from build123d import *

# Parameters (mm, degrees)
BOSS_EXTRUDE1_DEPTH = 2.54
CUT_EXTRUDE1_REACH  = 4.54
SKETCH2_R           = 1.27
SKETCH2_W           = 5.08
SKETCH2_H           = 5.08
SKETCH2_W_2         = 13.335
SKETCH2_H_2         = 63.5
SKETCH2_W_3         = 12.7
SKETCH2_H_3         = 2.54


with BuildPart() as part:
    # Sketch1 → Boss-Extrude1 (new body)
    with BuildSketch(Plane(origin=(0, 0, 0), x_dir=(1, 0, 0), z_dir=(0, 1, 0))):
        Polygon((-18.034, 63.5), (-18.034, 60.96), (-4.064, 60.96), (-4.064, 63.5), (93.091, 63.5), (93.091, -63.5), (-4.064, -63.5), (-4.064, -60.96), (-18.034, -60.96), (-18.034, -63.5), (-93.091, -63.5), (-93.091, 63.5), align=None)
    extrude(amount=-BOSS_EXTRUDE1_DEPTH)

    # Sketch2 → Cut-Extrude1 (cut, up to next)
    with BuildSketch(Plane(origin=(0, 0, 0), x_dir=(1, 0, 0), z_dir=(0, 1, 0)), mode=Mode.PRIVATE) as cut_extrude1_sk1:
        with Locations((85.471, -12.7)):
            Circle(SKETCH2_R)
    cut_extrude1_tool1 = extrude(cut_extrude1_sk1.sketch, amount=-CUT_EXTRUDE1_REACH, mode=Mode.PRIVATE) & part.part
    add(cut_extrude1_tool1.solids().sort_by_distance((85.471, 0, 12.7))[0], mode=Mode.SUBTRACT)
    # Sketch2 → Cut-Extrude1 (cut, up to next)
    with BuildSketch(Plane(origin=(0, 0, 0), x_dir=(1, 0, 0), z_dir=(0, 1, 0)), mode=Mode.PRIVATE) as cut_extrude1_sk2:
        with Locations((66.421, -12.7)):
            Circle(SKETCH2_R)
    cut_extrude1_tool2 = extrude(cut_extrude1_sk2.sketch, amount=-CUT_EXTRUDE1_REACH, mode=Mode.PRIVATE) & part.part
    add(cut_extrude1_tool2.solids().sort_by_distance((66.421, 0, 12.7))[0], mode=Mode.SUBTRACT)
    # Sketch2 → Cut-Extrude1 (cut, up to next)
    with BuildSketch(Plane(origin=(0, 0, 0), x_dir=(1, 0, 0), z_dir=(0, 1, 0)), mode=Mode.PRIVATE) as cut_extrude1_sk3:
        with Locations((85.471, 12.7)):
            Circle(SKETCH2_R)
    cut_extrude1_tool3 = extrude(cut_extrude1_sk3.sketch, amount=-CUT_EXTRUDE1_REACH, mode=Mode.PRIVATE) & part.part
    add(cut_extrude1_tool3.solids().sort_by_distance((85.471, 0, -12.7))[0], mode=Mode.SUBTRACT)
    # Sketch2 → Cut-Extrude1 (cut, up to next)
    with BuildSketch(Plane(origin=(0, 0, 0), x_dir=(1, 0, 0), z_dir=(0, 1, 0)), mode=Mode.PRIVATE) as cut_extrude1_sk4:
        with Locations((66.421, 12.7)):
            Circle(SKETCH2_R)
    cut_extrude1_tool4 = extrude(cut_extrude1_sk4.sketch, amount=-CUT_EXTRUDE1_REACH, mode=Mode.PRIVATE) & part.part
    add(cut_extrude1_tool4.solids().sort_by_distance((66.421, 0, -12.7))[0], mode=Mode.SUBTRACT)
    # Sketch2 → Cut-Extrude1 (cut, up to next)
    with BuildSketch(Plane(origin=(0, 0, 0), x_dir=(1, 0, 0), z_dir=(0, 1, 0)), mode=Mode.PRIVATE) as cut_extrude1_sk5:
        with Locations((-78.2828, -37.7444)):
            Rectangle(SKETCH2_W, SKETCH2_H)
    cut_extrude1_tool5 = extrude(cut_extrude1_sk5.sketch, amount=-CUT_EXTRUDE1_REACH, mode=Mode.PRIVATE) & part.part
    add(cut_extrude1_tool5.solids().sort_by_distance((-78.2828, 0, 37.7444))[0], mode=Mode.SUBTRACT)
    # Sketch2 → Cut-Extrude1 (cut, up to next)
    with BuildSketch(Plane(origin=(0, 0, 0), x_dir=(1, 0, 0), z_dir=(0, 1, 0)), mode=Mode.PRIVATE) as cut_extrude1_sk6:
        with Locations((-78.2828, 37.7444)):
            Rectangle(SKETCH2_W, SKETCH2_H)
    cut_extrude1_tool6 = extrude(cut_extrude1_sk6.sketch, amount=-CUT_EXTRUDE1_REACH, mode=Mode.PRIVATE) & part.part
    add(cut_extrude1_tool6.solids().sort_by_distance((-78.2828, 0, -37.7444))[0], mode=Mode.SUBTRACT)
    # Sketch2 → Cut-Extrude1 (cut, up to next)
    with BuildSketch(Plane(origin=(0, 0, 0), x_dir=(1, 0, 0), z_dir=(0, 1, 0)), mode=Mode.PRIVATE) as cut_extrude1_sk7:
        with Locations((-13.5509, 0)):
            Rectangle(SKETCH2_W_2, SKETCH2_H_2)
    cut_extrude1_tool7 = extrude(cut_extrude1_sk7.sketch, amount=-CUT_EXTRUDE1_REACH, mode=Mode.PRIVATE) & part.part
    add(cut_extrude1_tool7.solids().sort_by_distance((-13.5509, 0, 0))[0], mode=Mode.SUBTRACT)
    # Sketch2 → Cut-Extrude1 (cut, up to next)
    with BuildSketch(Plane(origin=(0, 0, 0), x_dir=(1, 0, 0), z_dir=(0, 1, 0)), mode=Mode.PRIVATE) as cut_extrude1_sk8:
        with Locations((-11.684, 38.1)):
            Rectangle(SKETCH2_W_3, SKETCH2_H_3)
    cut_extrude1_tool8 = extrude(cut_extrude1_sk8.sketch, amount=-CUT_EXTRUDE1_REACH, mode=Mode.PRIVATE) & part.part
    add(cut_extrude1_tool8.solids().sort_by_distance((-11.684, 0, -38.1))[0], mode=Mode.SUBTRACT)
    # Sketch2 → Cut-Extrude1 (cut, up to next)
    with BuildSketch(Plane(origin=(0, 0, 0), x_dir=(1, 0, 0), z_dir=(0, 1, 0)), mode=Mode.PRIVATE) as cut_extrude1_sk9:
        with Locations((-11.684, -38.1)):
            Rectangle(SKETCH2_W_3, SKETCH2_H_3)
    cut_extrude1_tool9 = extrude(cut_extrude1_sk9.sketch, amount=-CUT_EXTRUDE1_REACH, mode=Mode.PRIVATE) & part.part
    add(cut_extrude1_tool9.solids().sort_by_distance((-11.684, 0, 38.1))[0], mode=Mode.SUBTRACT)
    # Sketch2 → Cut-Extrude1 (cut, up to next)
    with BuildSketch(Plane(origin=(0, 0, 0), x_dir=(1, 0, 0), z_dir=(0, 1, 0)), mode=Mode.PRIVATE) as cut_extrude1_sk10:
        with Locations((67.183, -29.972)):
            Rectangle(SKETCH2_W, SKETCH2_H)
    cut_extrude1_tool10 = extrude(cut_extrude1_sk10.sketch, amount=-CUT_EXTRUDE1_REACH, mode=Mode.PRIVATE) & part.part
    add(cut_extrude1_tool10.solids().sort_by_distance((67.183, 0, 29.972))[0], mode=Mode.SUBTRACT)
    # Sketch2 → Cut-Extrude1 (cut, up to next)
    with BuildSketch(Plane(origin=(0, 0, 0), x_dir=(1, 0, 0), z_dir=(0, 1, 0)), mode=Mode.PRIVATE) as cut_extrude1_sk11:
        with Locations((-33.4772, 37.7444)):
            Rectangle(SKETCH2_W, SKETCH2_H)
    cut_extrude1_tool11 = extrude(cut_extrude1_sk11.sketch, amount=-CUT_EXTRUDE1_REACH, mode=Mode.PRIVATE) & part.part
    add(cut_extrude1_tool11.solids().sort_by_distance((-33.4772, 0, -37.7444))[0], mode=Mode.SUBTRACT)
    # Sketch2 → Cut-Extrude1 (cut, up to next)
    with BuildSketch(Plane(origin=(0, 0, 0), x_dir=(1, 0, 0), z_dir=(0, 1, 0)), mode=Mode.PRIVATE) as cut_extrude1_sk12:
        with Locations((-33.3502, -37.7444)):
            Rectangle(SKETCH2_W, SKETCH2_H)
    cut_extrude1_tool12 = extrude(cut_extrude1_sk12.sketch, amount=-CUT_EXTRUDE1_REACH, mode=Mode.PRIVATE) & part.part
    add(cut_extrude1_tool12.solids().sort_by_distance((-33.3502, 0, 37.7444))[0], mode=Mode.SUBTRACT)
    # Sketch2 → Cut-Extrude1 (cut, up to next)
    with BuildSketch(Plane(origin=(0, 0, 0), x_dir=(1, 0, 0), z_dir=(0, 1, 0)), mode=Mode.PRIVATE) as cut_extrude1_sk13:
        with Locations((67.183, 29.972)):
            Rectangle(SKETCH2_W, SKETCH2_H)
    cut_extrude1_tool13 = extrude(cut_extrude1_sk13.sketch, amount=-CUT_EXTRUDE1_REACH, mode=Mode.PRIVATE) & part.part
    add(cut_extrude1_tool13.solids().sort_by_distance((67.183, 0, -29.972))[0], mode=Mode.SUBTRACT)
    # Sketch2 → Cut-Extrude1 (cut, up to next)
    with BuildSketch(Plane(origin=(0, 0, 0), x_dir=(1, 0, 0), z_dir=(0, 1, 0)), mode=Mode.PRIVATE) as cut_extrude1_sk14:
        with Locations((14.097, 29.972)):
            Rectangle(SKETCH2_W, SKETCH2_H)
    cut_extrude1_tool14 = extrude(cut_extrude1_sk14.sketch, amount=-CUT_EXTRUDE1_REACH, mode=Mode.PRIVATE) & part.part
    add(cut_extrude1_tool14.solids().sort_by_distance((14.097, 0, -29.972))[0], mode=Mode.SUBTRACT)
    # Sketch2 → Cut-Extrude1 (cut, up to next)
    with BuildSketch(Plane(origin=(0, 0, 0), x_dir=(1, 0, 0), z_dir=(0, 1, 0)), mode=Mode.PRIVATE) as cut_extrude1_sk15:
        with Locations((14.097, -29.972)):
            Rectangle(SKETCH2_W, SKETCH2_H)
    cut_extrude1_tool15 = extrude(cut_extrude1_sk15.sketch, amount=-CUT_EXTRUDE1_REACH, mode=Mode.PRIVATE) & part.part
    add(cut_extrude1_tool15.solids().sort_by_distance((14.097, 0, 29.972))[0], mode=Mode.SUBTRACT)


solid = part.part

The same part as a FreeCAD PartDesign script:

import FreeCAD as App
import Part
import Sketcher
Q = App.Units.Quantity

doc = App.newDocument("Part")
body = doc.addObject("PartDesign::Body", "Body")

# Sketch on XZ plane
sketch1 = doc.addObject("Sketcher::SketchObject", "Sketch")
body.addObject(sketch1)
sketch1.AttachmentSupport = (doc.XZ_Plane, [""])
sketch1.MapMode = "FlatFace"
sketch1.addGeometry(Part.LineSegment(App.Vector(-18, -61, 0), App.Vector(-18, -63.5, 0)), False)
sketch1.addGeometry(Part.LineSegment(App.Vector(-18, -63.5, 0), App.Vector(-93.1, -63.5, 0)), False)
sketch1.addGeometry(Part.LineSegment(App.Vector(-93.1, -63.5, 0), App.Vector(-93.1, 63.5, 0)), False)
sketch1.addGeometry(Part.LineSegment(App.Vector(-93.1, 63.5, 0), App.Vector(-18, 63.5, 0)), False)
sketch1.addGeometry(Part.LineSegment(App.Vector(-18, 63.5, 0), App.Vector(-18, 61, 0)), False)
sketch1.addGeometry(Part.LineSegment(App.Vector(-18, 61, 0), App.Vector(-4.1, 61, 0)), False)
sketch1.addGeometry(Part.LineSegment(App.Vector(-4.1, 61, 0), App.Vector(-4.1, 63.5, 0)), False)
sketch1.addGeometry(Part.LineSegment(App.Vector(-4.1, 63.5, 0), App.Vector(93.1, 63.5, 0)), False)
sketch1.addGeometry(Part.LineSegment(App.Vector(93.1, 63.5, 0), App.Vector(93.1, -63.5, 0)), False)
sketch1.addGeometry(Part.LineSegment(App.Vector(93.1, -63.5, 0), App.Vector(-4.1, -63.5, 0)), False)
sketch1.addGeometry(Part.LineSegment(App.Vector(-4.1, -63.5, 0), App.Vector(-4.1, -61, 0)), False)
sketch1.addGeometry(Part.LineSegment(App.Vector(-4.1, -61, 0), App.Vector(-18, -61, 0)), False)
sketch1.addConstraint(Sketcher.Constraint("Coincident", 0, 2, 1, 1))
sketch1.addConstraint(Sketcher.Constraint("Coincident", 1, 2, 2, 1))
sketch1.addConstraint(Sketcher.Constraint("Coincident", 2, 2, 3, 1))
sketch1.addConstraint(Sketcher.Constraint("Coincident", 3, 2, 4, 1))
sketch1.addConstraint(Sketcher.Constraint("Coincident", 4, 2, 5, 1))
sketch1.addConstraint(Sketcher.Constraint("Coincident", 5, 2, 6, 1))
sketch1.addConstraint(Sketcher.Constraint("Coincident", 6, 2, 7, 1))
sketch1.addConstraint(Sketcher.Constraint("Coincident", 7, 2, 8, 1))
sketch1.addConstraint(Sketcher.Constraint("Coincident", 8, 2, 9, 1))
sketch1.addConstraint(Sketcher.Constraint("Coincident", 9, 2, 10, 1))
sketch1.addConstraint(Sketcher.Constraint("Coincident", 10, 2, 11, 1))
sketch1.addConstraint(Sketcher.Constraint("Coincident", 11, 2, 0, 1))
sketch1.addConstraint(Sketcher.Constraint("Vertical", 0))
sketch1.addConstraint(Sketcher.Constraint("Horizontal", 1))
sketch1.addConstraint(Sketcher.Constraint("Vertical", 2))
sketch1.addConstraint(Sketcher.Constraint("Horizontal", 3))
sketch1.addConstraint(Sketcher.Constraint("Vertical", 4))
sketch1.addConstraint(Sketcher.Constraint("Horizontal", 5))
sketch1.addConstraint(Sketcher.Constraint("Vertical", 6))
sketch1.addConstraint(Sketcher.Constraint("Horizontal", 7))
sketch1.addConstraint(Sketcher.Constraint("Vertical", 8))
sketch1.addConstraint(Sketcher.Constraint("Horizontal", 9))
sketch1.addConstraint(Sketcher.Constraint("Vertical", 10))
sketch1.addConstraint(Sketcher.Constraint("Horizontal", 11))
sketch1.addConstraint(Sketcher.Constraint("Symmetric", 1, 2, 7, 2, -1, 1))
sketch1.addConstraint(Sketcher.Constraint("Symmetric", 0, 2, 3, 2, -1))
sketch1.addConstraint(Sketcher.Constraint("Symmetric", 6, 2, 9, 2, -1))
sketch1.addConstraint(Sketcher.Constraint("Equal", 0, 4))
sketch1.addConstraint(Sketcher.Constraint("DistanceY", 2, 1, 2, 2, Q("5 in")))
sketch1.addConstraint(Sketcher.Constraint("DistanceY", 0, 2, 0, 1, Q("0.1 in")))
sketch1.addConstraint(Sketcher.Constraint("DistanceX", 5, 1, 5, 2, Q("0.55 in")))
sketch1.addConstraint(Sketcher.Constraint("DistanceX", 1, 2, 1, 1, Q("2.955 in")))
sketch1.addConstraint(Sketcher.Constraint("DistanceX", 7, 1, 7, 2, Q("3.825 in")))
pad1 = doc.addObject("PartDesign::Pad", "Pad")
body.addObject(pad1)
pad1.Profile = sketch1
pad1.Length = Q("0.1 in")

# Sketch on XZ plane
sketch2 = doc.addObject("Sketcher::SketchObject", "Sketch001")
body.addObject(sketch2)
sketch2.AttachmentSupport = (doc.XZ_Plane, [""])
sketch2.MapMode = "FlatFace"
sketch2.addGeometry(Part.Circle(App.Vector(85.5, 12.7, 0), App.Vector(0, 0, 1), 1.3), False)
sketch2.addConstraint(Sketcher.Constraint("Diameter", 0, Q("0.1 in")))
sketch2.addConstraint(Sketcher.Constraint("DistanceY", -1, 1, 0, 3, Q("0.5 in")))
sketch2.addConstraint(Sketcher.Constraint("DistanceX", -1, 1, 0, 3, Q("3.365 in")))
pocket1 = doc.addObject("PartDesign::Pocket", "Pocket")
body.addObject(pocket1)
pocket1.Profile = sketch2
pocket1.Type = "UpToFirst"
pocket1.Reversed = True

# Sketch on XZ plane
sketch3 = doc.addObject("Sketcher::SketchObject", "Sketch002")
body.addObject(sketch3)
sketch3.AttachmentSupport = (doc.XZ_Plane, [""])
sketch3.MapMode = "FlatFace"
sketch3.addGeometry(Part.Circle(App.Vector(66.4, 12.7, 0), App.Vector(0, 0, 1), 1.3), False)
sketch3.addConstraint(Sketcher.Constraint("Diameter", 0, Q("0.1 in")))
sketch3.addConstraint(Sketcher.Constraint("DistanceY", -1, 1, 0, 3, Q("0.5 in")))
sketch3.addConstraint(Sketcher.Constraint("DistanceX", -1, 1, 0, 3, Q("2.615 in")))
pocket2 = doc.addObject("PartDesign::Pocket", "Pocket001")
body.addObject(pocket2)
pocket2.Profile = sketch3
pocket2.Type = "UpToFirst"
pocket2.Reversed = True

# Sketch on XZ plane
sketch4 = doc.addObject("Sketcher::SketchObject", "Sketch003")
body.addObject(sketch4)
sketch4.AttachmentSupport = (doc.XZ_Plane, [""])
sketch4.MapMode = "FlatFace"
sketch4.addGeometry(Part.Circle(App.Vector(85.5, -12.7, 0), App.Vector(0, 0, 1), 1.3), False)
sketch4.addConstraint(Sketcher.Constraint("Diameter", 0, Q("0.1 in")))
sketch4.addConstraint(Sketcher.Constraint("DistanceY", 0, 3, -1, 1, Q("0.5 in")))
sketch4.addConstraint(Sketcher.Constraint("DistanceX", -1, 1, 0, 3, Q("3.365 in")))
pocket3 = doc.addObject("PartDesign::Pocket", "Pocket002")
body.addObject(pocket3)
pocket3.Profile = sketch4
pocket3.Type = "UpToFirst"
pocket3.Reversed = True

# Sketch on XZ plane
sketch5 = doc.addObject("Sketcher::SketchObject", "Sketch004")
body.addObject(sketch5)
sketch5.AttachmentSupport = (doc.XZ_Plane, [""])
sketch5.MapMode = "FlatFace"
sketch5.addGeometry(Part.Circle(App.Vector(66.4, -12.7, 0), App.Vector(0, 0, 1), 1.3), False)
sketch5.addConstraint(Sketcher.Constraint("Diameter", 0, Q("0.1 in")))
sketch5.addConstraint(Sketcher.Constraint("DistanceY", 0, 3, -1, 1, Q("0.5 in")))
sketch5.addConstraint(Sketcher.Constraint("DistanceX", -1, 1, 0, 3, Q("2.615 in")))
pocket4 = doc.addObject("PartDesign::Pocket", "Pocket003")
body.addObject(pocket4)
pocket4.Profile = sketch5
pocket4.Type = "UpToFirst"
pocket4.Reversed = True

# Sketch on XZ plane
sketch6 = doc.addObject("Sketcher::SketchObject", "Sketch005")
body.addObject(sketch6)
sketch6.AttachmentSupport = (doc.XZ_Plane, [""])
sketch6.MapMode = "FlatFace"
sketch6.addGeometry(Part.LineSegment(App.Vector(-81, 35, 0), App.Vector(-81, 40, 0)), False)
sketch6.addGeometry(Part.LineSegment(App.Vector(-81, 40, 0), App.Vector(-76, 40, 0)), False)
sketch6.addGeometry(Part.LineSegment(App.Vector(-76, 40, 0), App.Vector(-76, 35, 0)), False)
sketch6.addGeometry(Part.LineSegment(App.Vector(-76, 35, 0), App.Vector(-81, 35, 0)), False)
sketch6.addConstraint(Sketcher.Constraint("Coincident", 0, 2, 1, 1))
sketch6.addConstraint(Sketcher.Constraint("Coincident", 1, 2, 2, 1))
sketch6.addConstraint(Sketcher.Constraint("Coincident", 2, 2, 3, 1))
sketch6.addConstraint(Sketcher.Constraint("Coincident", 3, 2, 0, 1))
sketch6.addConstraint(Sketcher.Constraint("Vertical", 0))
sketch6.addConstraint(Sketcher.Constraint("Horizontal", 1))
sketch6.addConstraint(Sketcher.Constraint("Vertical", 2))
sketch6.addConstraint(Sketcher.Constraint("Horizontal", 3))
sketch6.addConstraint(Sketcher.Constraint("Equal", 3, 0))
sketch6.addConstraint(Sketcher.Constraint("DistanceX", 1, 1, 1, 2, Q("0.2 in")))
sketch6.addConstraint(Sketcher.Constraint("DistanceX", 0, 2, -1, 1, Q("3.182 in")))
sketch6.addConstraint(Sketcher.Constraint("DistanceY", -1, 1, 0, 2, Q("1.586 in")))
pocket5 = doc.addObject("PartDesign::Pocket", "Pocket004")
body.addObject(pocket5)
pocket5.Profile = sketch6
pocket5.Type = "UpToFirst"
pocket5.Reversed = True

# Sketch on XZ plane
sketch7 = doc.addObject("Sketcher::SketchObject", "Sketch006")
body.addObject(sketch7)
sketch7.AttachmentSupport = (doc.XZ_Plane, [""])
sketch7.MapMode = "FlatFace"
sketch7.addGeometry(Part.LineSegment(App.Vector(-81, -40, 0), App.Vector(-81, -35, 0)), False)
sketch7.addGeometry(Part.LineSegment(App.Vector(-81, -35, 0), App.Vector(-76, -35, 0)), False)
sketch7.addGeometry(Part.LineSegment(App.Vector(-76, -35, 0), App.Vector(-76, -40, 0)), False)
sketch7.addGeometry(Part.LineSegment(App.Vector(-76, -40, 0), App.Vector(-81, -40, 0)), False)
sketch7.addConstraint(Sketcher.Constraint("Coincident", 0, 2, 1, 1))
sketch7.addConstraint(Sketcher.Constraint("Coincident", 1, 2, 2, 1))
sketch7.addConstraint(Sketcher.Constraint("Coincident", 2, 2, 3, 1))
sketch7.addConstraint(Sketcher.Constraint("Coincident", 3, 2, 0, 1))
sketch7.addConstraint(Sketcher.Constraint("Vertical", 0))
sketch7.addConstraint(Sketcher.Constraint("Horizontal", 1))
sketch7.addConstraint(Sketcher.Constraint("Vertical", 2))
sketch7.addConstraint(Sketcher.Constraint("Horizontal", 3))
sketch7.addConstraint(Sketcher.Constraint("Equal", 3, 0))
sketch7.addConstraint(Sketcher.Constraint("DistanceX", 1, 1, 1, 2, Q("0.2 in")))
sketch7.addConstraint(Sketcher.Constraint("DistanceX", 0, 2, -1, 1, Q("3.182 in")))
sketch7.addConstraint(Sketcher.Constraint("DistanceY", 0, 2, -1, 1, Q("1.386 in")))
pocket6 = doc.addObject("PartDesign::Pocket", "Pocket005")
body.addObject(pocket6)
pocket6.Profile = sketch7
pocket6.Type = "UpToFirst"
pocket6.Reversed = True

# Sketch on XZ plane
sketch8 = doc.addObject("Sketcher::SketchObject", "Sketch007")
body.addObject(sketch8)
sketch8.AttachmentSupport = (doc.XZ_Plane, [""])
sketch8.MapMode = "FlatFace"
sketch8.addGeometry(Part.LineSegment(App.Vector(-20, -32, 0), App.Vector(-20, 32, 0)), False)
sketch8.addGeometry(Part.LineSegment(App.Vector(-20, 32, 0), App.Vector(-7, 32, 0)), False)
sketch8.addGeometry(Part.LineSegment(App.Vector(-7, 32, 0), App.Vector(-7, -32, 0)), False)
sketch8.addGeometry(Part.LineSegment(App.Vector(-7, -32, 0), App.Vector(-20, -32, 0)), False)
sketch8.addConstraint(Sketcher.Constraint("Coincident", 0, 2, 1, 1))
sketch8.addConstraint(Sketcher.Constraint("Coincident", 1, 2, 2, 1))
sketch8.addConstraint(Sketcher.Constraint("Coincident", 2, 2, 3, 1))
sketch8.addConstraint(Sketcher.Constraint("Coincident", 3, 2, 0, 1))
sketch8.addConstraint(Sketcher.Constraint("Vertical", 0))
sketch8.addConstraint(Sketcher.Constraint("Horizontal", 1))
sketch8.addConstraint(Sketcher.Constraint("Vertical", 2))
sketch8.addConstraint(Sketcher.Constraint("Horizontal", 3))
sketch8.addConstraint(Sketcher.Constraint("DistanceY", 0, 1, 0, 2, Q("2.5 in")))
sketch8.addConstraint(Sketcher.Constraint("DistanceX", 1, 1, 1, 2, Q("0.525 in")))
sketch8.addConstraint(Sketcher.Constraint("DistanceY", -1, 1, 0, 2, Q("1.25 in")))
sketch8.addConstraint(Sketcher.Constraint("DistanceX", 0, 2, -1, 1, Q("0.796 in")))
pocket7 = doc.addObject("PartDesign::Pocket", "Pocket006")
body.addObject(pocket7)
pocket7.Profile = sketch8
pocket7.Type = "UpToFirst"
pocket7.Reversed = True

# Sketch on XZ plane
sketch9 = doc.addObject("Sketcher::SketchObject", "Sketch008")
body.addObject(sketch9)
sketch9.AttachmentSupport = (doc.XZ_Plane, [""])
sketch9.MapMode = "FlatFace"
sketch9.addGeometry(Part.LineSegment(App.Vector(-18, -39.4, 0), App.Vector(-18, -36.8, 0)), False)
sketch9.addGeometry(Part.LineSegment(App.Vector(-18, -36.8, 0), App.Vector(-5.3, -36.8, 0)), False)
sketch9.addGeometry(Part.LineSegment(App.Vector(-5.3, -36.8, 0), App.Vector(-5.3, -39.4, 0)), False)
sketch9.addGeometry(Part.LineSegment(App.Vector(-5.3, -39.4, 0), App.Vector(-18, -39.4, 0)), False)
sketch9.addConstraint(Sketcher.Constraint("Coincident", 0, 2, 1, 1))
sketch9.addConstraint(Sketcher.Constraint("Coincident", 1, 2, 2, 1))
sketch9.addConstraint(Sketcher.Constraint("Coincident", 2, 2, 3, 1))
sketch9.addConstraint(Sketcher.Constraint("Coincident", 3, 2, 0, 1))
sketch9.addConstraint(Sketcher.Constraint("Vertical", 0))
sketch9.addConstraint(Sketcher.Constraint("Horizontal", 1))
sketch9.addConstraint(Sketcher.Constraint("Vertical", 2))
sketch9.addConstraint(Sketcher.Constraint("Horizontal", 3))
sketch9.addConstraint(Sketcher.Constraint("DistanceX", 1, 1, 1, 2, Q("0.5 in")))
sketch9.addConstraint(Sketcher.Constraint("DistanceY", 0, 1, 0, 2, Q("0.1 in")))
sketch9.addConstraint(Sketcher.Constraint("DistanceX", 0, 2, -1, 1, Q("0.71 in")))
sketch9.addConstraint(Sketcher.Constraint("DistanceY", 0, 2, -1, 1, Q("1.45 in")))
pocket8 = doc.addObject("PartDesign::Pocket", "Pocket007")
body.addObject(pocket8)
pocket8.Profile = sketch9
pocket8.Type = "UpToFirst"
pocket8.Reversed = True

# Sketch on XZ plane
sketch10 = doc.addObject("Sketcher::SketchObject", "Sketch009")
body.addObject(sketch10)
sketch10.AttachmentSupport = (doc.XZ_Plane, [""])
sketch10.MapMode = "FlatFace"
sketch10.addGeometry(Part.LineSegment(App.Vector(-18, 36.8, 0), App.Vector(-18, 39.4, 0)), False)
sketch10.addGeometry(Part.LineSegment(App.Vector(-18, 39.4, 0), App.Vector(-5.3, 39.4, 0)), False)
sketch10.addGeometry(Part.LineSegment(App.Vector(-5.3, 39.4, 0), App.Vector(-5.3, 36.8, 0)), False)
sketch10.addGeometry(Part.LineSegment(App.Vector(-5.3, 36.8, 0), App.Vector(-18, 36.8, 0)), False)
sketch10.addConstraint(Sketcher.Constraint("Coincident", 0, 2, 1, 1))
sketch10.addConstraint(Sketcher.Constraint("Coincident", 1, 2, 2, 1))
sketch10.addConstraint(Sketcher.Constraint("Coincident", 2, 2, 3, 1))
sketch10.addConstraint(Sketcher.Constraint("Coincident", 3, 2, 0, 1))
sketch10.addConstraint(Sketcher.Constraint("Vertical", 0))
sketch10.addConstraint(Sketcher.Constraint("Horizontal", 1))
sketch10.addConstraint(Sketcher.Constraint("Vertical", 2))
sketch10.addConstraint(Sketcher.Constraint("Horizontal", 3))
sketch10.addConstraint(Sketcher.Constraint("DistanceX", 1, 1, 1, 2, Q("0.5 in")))
sketch10.addConstraint(Sketcher.Constraint("DistanceY", 0, 1, 0, 2, Q("0.1 in")))
sketch10.addConstraint(Sketcher.Constraint("DistanceX", 0, 2, -1, 1, Q("0.71 in")))
sketch10.addConstraint(Sketcher.Constraint("DistanceY", -1, 1, 0, 2, Q("1.55 in")))
pocket9 = doc.addObject("PartDesign::Pocket", "Pocket008")
body.addObject(pocket9)
pocket9.Profile = sketch10
pocket9.Type = "UpToFirst"
pocket9.Reversed = True

# Sketch on XZ plane
sketch11 = doc.addObject("Sketcher::SketchObject", "Sketch010")
body.addObject(sketch11)
sketch11.AttachmentSupport = (doc.XZ_Plane, [""])
sketch11.MapMode = "FlatFace"
sketch11.addGeometry(Part.LineSegment(App.Vector(65, 27, 0), App.Vector(65, 33, 0)), False)
sketch11.addGeometry(Part.LineSegment(App.Vector(65, 33, 0), App.Vector(70, 33, 0)), False)
sketch11.addGeometry(Part.LineSegment(App.Vector(70, 33, 0), App.Vector(70, 27, 0)), False)
sketch11.addGeometry(Part.LineSegment(App.Vector(70, 27, 0), App.Vector(65, 27, 0)), False)
sketch11.addConstraint(Sketcher.Constraint("Coincident", 0, 2, 1, 1))
sketch11.addConstraint(Sketcher.Constraint("Coincident", 1, 2, 2, 1))
sketch11.addConstraint(Sketcher.Constraint("Coincident", 2, 2, 3, 1))
sketch11.addConstraint(Sketcher.Constraint("Coincident", 3, 2, 0, 1))
sketch11.addConstraint(Sketcher.Constraint("Vertical", 0))
sketch11.addConstraint(Sketcher.Constraint("Horizontal", 1))
sketch11.addConstraint(Sketcher.Constraint("Vertical", 2))
sketch11.addConstraint(Sketcher.Constraint("Horizontal", 3))
sketch11.addConstraint(Sketcher.Constraint("Equal", 3, 0))
sketch11.addConstraint(Sketcher.Constraint("DistanceX", 1, 1, 1, 2, Q("0.2 in")))
sketch11.addConstraint(Sketcher.Constraint("DistanceY", -1, 1, 0, 2, Q("1.28 in")))
sketch11.addConstraint(Sketcher.Constraint("DistanceX", -1, 1, 0, 2, Q("2.545 in")))
pocket10 = doc.addObject("PartDesign::Pocket", "Pocket009")
body.addObject(pocket10)
pocket10.Profile = sketch11
pocket10.Type = "UpToFirst"
pocket10.Reversed = True

# Sketch on XZ plane
sketch12 = doc.addObject("Sketcher::SketchObject", "Sketch011")
body.addObject(sketch12)
sketch12.AttachmentSupport = (doc.XZ_Plane, [""])
sketch12.MapMode = "FlatFace"
sketch12.addGeometry(Part.LineSegment(App.Vector(-36, -40, 0), App.Vector(-36, -35, 0)), False)
sketch12.addGeometry(Part.LineSegment(App.Vector(-36, -35, 0), App.Vector(-31, -35, 0)), False)
sketch12.addGeometry(Part.LineSegment(App.Vector(-31, -35, 0), App.Vector(-31, -40, 0)), False)
sketch12.addGeometry(Part.LineSegment(App.Vector(-31, -40, 0), App.Vector(-36, -40, 0)), False)
sketch12.addConstraint(Sketcher.Constraint("Coincident", 0, 2, 1, 1))
sketch12.addConstraint(Sketcher.Constraint("Coincident", 1, 2, 2, 1))
sketch12.addConstraint(Sketcher.Constraint("Coincident", 2, 2, 3, 1))
sketch12.addConstraint(Sketcher.Constraint("Coincident", 3, 2, 0, 1))
sketch12.addConstraint(Sketcher.Constraint("Vertical", 0))
sketch12.addConstraint(Sketcher.Constraint("Horizontal", 1))
sketch12.addConstraint(Sketcher.Constraint("Vertical", 2))
sketch12.addConstraint(Sketcher.Constraint("Horizontal", 3))
sketch12.addConstraint(Sketcher.Constraint("Equal", 3, 0))
sketch12.addConstraint(Sketcher.Constraint("DistanceX", 1, 1, 1, 2, Q("0.2 in")))
sketch12.addConstraint(Sketcher.Constraint("DistanceX", 0, 2, -1, 1, Q("1.418 in")))
sketch12.addConstraint(Sketcher.Constraint("DistanceY", 0, 2, -1, 1, Q("1.386 in")))
pocket11 = doc.addObject("PartDesign::Pocket", "Pocket010")
body.addObject(pocket11)
pocket11.Profile = sketch12
pocket11.Type = "UpToFirst"
pocket11.Reversed = True

# Sketch on XZ plane
sketch13 = doc.addObject("Sketcher::SketchObject", "Sketch012")
body.addObject(sketch13)
sketch13.AttachmentSupport = (doc.XZ_Plane, [""])
sketch13.MapMode = "FlatFace"
sketch13.addGeometry(Part.LineSegment(App.Vector(-36, 35, 0), App.Vector(-36, 40, 0)), False)
sketch13.addGeometry(Part.LineSegment(App.Vector(-36, 40, 0), App.Vector(-31, 40, 0)), False)
sketch13.addGeometry(Part.LineSegment(App.Vector(-31, 40, 0), App.Vector(-31, 35, 0)), False)
sketch13.addGeometry(Part.LineSegment(App.Vector(-31, 35, 0), App.Vector(-36, 35, 0)), False)
sketch13.addConstraint(Sketcher.Constraint("Coincident", 0, 2, 1, 1))
sketch13.addConstraint(Sketcher.Constraint("Coincident", 1, 2, 2, 1))
sketch13.addConstraint(Sketcher.Constraint("Coincident", 2, 2, 3, 1))
sketch13.addConstraint(Sketcher.Constraint("Coincident", 3, 2, 0, 1))
sketch13.addConstraint(Sketcher.Constraint("Vertical", 0))
sketch13.addConstraint(Sketcher.Constraint("Horizontal", 1))
sketch13.addConstraint(Sketcher.Constraint("Vertical", 2))
sketch13.addConstraint(Sketcher.Constraint("Horizontal", 3))
sketch13.addConstraint(Sketcher.Constraint("Equal", 3, 0))
sketch13.addConstraint(Sketcher.Constraint("DistanceX", 1, 1, 1, 2, Q("0.2 in")))
sketch13.addConstraint(Sketcher.Constraint("DistanceX", 0, 2, -1, 1, Q("1.413 in")))
sketch13.addConstraint(Sketcher.Constraint("DistanceY", -1, 1, 0, 2, Q("1.586 in")))
pocket12 = doc.addObject("PartDesign::Pocket", "Pocket011")
body.addObject(pocket12)
pocket12.Profile = sketch13
pocket12.Type = "UpToFirst"
pocket12.Reversed = True

# Sketch on XZ plane
sketch14 = doc.addObject("Sketcher::SketchObject", "Sketch013")
body.addObject(sketch14)
sketch14.AttachmentSupport = (doc.XZ_Plane, [""])
sketch14.MapMode = "FlatFace"
sketch14.addGeometry(Part.LineSegment(App.Vector(65, -33, 0), App.Vector(65, -27, 0)), False)
sketch14.addGeometry(Part.LineSegment(App.Vector(65, -27, 0), App.Vector(70, -27, 0)), False)
sketch14.addGeometry(Part.LineSegment(App.Vector(70, -27, 0), App.Vector(70, -33, 0)), False)
sketch14.addGeometry(Part.LineSegment(App.Vector(70, -33, 0), App.Vector(65, -33, 0)), False)
sketch14.addConstraint(Sketcher.Constraint("Coincident", 0, 2, 1, 1))
sketch14.addConstraint(Sketcher.Constraint("Coincident", 1, 2, 2, 1))
sketch14.addConstraint(Sketcher.Constraint("Coincident", 2, 2, 3, 1))
sketch14.addConstraint(Sketcher.Constraint("Coincident", 3, 2, 0, 1))
sketch14.addConstraint(Sketcher.Constraint("Vertical", 0))
sketch14.addConstraint(Sketcher.Constraint("Horizontal", 1))
sketch14.addConstraint(Sketcher.Constraint("Vertical", 2))
sketch14.addConstraint(Sketcher.Constraint("Horizontal", 3))
sketch14.addConstraint(Sketcher.Constraint("Equal", 3, 0))
sketch14.addConstraint(Sketcher.Constraint("DistanceX", 1, 1, 1, 2, Q("0.2 in")))
sketch14.addConstraint(Sketcher.Constraint("DistanceY", 0, 2, -1, 1, Q("1.08 in")))
sketch14.addConstraint(Sketcher.Constraint("DistanceX", -1, 1, 0, 2, Q("2.545 in")))
pocket13 = doc.addObject("PartDesign::Pocket", "Pocket012")
body.addObject(pocket13)
pocket13.Profile = sketch14
pocket13.Type = "UpToFirst"
pocket13.Reversed = True

# Sketch on XZ plane
sketch15 = doc.addObject("Sketcher::SketchObject", "Sketch014")
body.addObject(sketch15)
sketch15.AttachmentSupport = (doc.XZ_Plane, [""])
sketch15.MapMode = "FlatFace"
sketch15.addGeometry(Part.LineSegment(App.Vector(12, -33, 0), App.Vector(12, -27, 0)), False)
sketch15.addGeometry(Part.LineSegment(App.Vector(12, -27, 0), App.Vector(17, -27, 0)), False)
sketch15.addGeometry(Part.LineSegment(App.Vector(17, -27, 0), App.Vector(17, -33, 0)), False)
sketch15.addGeometry(Part.LineSegment(App.Vector(17, -33, 0), App.Vector(12, -33, 0)), False)
sketch15.addConstraint(Sketcher.Constraint("Coincident", 0, 2, 1, 1))
sketch15.addConstraint(Sketcher.Constraint("Coincident", 1, 2, 2, 1))
sketch15.addConstraint(Sketcher.Constraint("Coincident", 2, 2, 3, 1))
sketch15.addConstraint(Sketcher.Constraint("Coincident", 3, 2, 0, 1))
sketch15.addConstraint(Sketcher.Constraint("Vertical", 0))
sketch15.addConstraint(Sketcher.Constraint("Horizontal", 1))
sketch15.addConstraint(Sketcher.Constraint("Vertical", 2))
sketch15.addConstraint(Sketcher.Constraint("Horizontal", 3))
sketch15.addConstraint(Sketcher.Constraint("Equal", 3, 0))
sketch15.addConstraint(Sketcher.Constraint("DistanceX", 1, 1, 1, 2, Q("0.2 in")))
sketch15.addConstraint(Sketcher.Constraint("DistanceY", 0, 2, -1, 1, Q("1.08 in")))
sketch15.addConstraint(Sketcher.Constraint("DistanceX", -1, 1, 0, 2, Q("0.455 in")))
pocket14 = doc.addObject("PartDesign::Pocket", "Pocket013")
body.addObject(pocket14)
pocket14.Profile = sketch15
pocket14.Type = "UpToFirst"
pocket14.Reversed = True

# Sketch on XZ plane
sketch16 = doc.addObject("Sketcher::SketchObject", "Sketch015")
body.addObject(sketch16)
sketch16.AttachmentSupport = (doc.XZ_Plane, [""])
sketch16.MapMode = "FlatFace"
sketch16.addGeometry(Part.LineSegment(App.Vector(12, 27, 0), App.Vector(12, 33, 0)), False)
sketch16.addGeometry(Part.LineSegment(App.Vector(12, 33, 0), App.Vector(17, 33, 0)), False)
sketch16.addGeometry(Part.LineSegment(App.Vector(17, 33, 0), App.Vector(17, 27, 0)), False)
sketch16.addGeometry(Part.LineSegment(App.Vector(17, 27, 0), App.Vector(12, 27, 0)), False)
sketch16.addConstraint(Sketcher.Constraint("Coincident", 0, 2, 1, 1))
sketch16.addConstraint(Sketcher.Constraint("Coincident", 1, 2, 2, 1))
sketch16.addConstraint(Sketcher.Constraint("Coincident", 2, 2, 3, 1))
sketch16.addConstraint(Sketcher.Constraint("Coincident", 3, 2, 0, 1))
sketch16.addConstraint(Sketcher.Constraint("Vertical", 0))
sketch16.addConstraint(Sketcher.Constraint("Horizontal", 1))
sketch16.addConstraint(Sketcher.Constraint("Vertical", 2))
sketch16.addConstraint(Sketcher.Constraint("Horizontal", 3))
sketch16.addConstraint(Sketcher.Constraint("Equal", 3, 0))
sketch16.addConstraint(Sketcher.Constraint("DistanceX", 1, 1, 1, 2, Q("0.2 in")))
sketch16.addConstraint(Sketcher.Constraint("DistanceY", -1, 1, 0, 2, Q("1.28 in")))
sketch16.addConstraint(Sketcher.Constraint("DistanceX", -1, 1, 0, 2, Q("0.455 in")))
pocket15 = doc.addObject("PartDesign::Pocket", "Pocket014")
body.addObject(pocket15)
pocket15.Profile = sketch16
pocket15.Type = "UpToFirst"
pocket15.Reversed = True

doc.recompute()
